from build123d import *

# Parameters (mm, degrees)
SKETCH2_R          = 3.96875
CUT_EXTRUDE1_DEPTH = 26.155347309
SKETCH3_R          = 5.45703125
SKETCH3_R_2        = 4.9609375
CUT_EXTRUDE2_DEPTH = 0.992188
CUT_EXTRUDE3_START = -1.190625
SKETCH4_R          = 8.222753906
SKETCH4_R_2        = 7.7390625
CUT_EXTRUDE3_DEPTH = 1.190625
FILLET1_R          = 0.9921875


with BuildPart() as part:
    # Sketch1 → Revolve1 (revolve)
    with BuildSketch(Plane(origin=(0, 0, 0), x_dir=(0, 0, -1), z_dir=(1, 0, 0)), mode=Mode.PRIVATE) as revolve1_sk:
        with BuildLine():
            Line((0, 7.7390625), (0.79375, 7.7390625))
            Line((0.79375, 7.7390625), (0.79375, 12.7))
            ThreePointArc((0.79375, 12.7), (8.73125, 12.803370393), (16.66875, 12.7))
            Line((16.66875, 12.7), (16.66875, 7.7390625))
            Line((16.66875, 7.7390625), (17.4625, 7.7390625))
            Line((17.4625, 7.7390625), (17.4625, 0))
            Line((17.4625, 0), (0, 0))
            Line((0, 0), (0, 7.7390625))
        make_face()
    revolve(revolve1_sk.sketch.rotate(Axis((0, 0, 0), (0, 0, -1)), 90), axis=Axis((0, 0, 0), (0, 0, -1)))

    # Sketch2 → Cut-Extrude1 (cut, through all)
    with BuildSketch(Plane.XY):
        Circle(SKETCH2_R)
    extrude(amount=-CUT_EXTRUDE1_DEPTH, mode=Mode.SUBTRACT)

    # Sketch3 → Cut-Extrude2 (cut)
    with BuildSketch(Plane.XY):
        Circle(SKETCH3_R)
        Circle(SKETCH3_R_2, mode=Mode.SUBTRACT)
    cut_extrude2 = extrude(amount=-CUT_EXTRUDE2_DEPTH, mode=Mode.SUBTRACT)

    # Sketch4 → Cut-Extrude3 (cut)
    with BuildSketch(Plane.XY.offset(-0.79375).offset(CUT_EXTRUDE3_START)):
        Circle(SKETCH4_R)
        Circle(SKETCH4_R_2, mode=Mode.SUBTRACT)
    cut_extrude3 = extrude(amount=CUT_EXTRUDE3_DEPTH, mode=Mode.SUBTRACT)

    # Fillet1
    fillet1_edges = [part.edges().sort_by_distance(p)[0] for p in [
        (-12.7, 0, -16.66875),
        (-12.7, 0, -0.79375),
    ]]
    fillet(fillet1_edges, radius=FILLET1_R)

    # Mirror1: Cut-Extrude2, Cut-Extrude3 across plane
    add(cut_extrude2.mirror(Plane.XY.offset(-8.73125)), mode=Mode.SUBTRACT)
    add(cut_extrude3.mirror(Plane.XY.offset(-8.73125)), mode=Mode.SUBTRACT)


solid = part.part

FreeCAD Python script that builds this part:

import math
import FreeCAD as App
import Part
import Sketcher
Q = App.Units.Quantity


def edges_at(feature, points):
    """Names of the edges that pass closest to the given points."""
    edges = feature.Shape.Edges
    near = lambda p: min(range(len(edges)), key=lambda i: edges[i].distToShape(Part.Vertex(*p))[0])
    return sorted({f"Edge{near(p) + 1}" for p in points})

doc = App.newDocument("Part")
params = doc.addObject("Spreadsheet::Sheet", "Params")
for row, (alias, value) in enumerate([
    ("sketch1_radius", "12 in"),
    ("sketch1_height", "0.03125 in"),
    ("sketch1_height2", "0.6875 in"),
    ("revolution_angle", "360 deg"),
    ("sketch2_diameter", "0.3125 in"),
    ("sketch3_diameter", "0.390625 in"),
    ("pocket2_length", "0.992188 mm"),
    ("sketch4_diameter", "0.609375 in"),
    ("pocket3_length", "0.046875 in"),
    ("fillet_radius", "0.992188 mm"),
], start=1):
    params.set(f"A{row}", alias)
    params.set(f"B{row}", "=" + value)
    params.setAlias(f"B{row}", alias)

body = doc.addObject("PartDesign::Body", "Body")

sketch1 = body.newObject("Sketcher::SketchObject", "Sketch")
sketch1.AttachmentSupport = (doc.getObject("YZ_Plane"), [""])
sketch1.MapMode = "FlatFace"
sketch1.addGeometry([
    Part.LineSegment(App.Vector(7.7, -0.8, 0), App.Vector(7.7, 0, 0)),
    Part.LineSegment(App.Vector(7.7, 0, 0), App.Vector(0, 0, 0)),
    Part.LineSegment(App.Vector(0, 0, 0), App.Vector(0, -17.5, 0)),
    Part.LineSegment(App.Vector(0, -17.5, 0), App.Vector(7.7, -17.5, 0)),
    Part.LineSegment(App.Vector(7.7, -17.5, 0), App.Vector(7.7, -16.7, 0)),
    Part.LineSegment(App.Vector(7.7, -16.7, 0), App.Vector(12.7, -16.7, 0)),
    Part.ArcOfCircle(Part.Circle(App.Vector(-292, -8.7, 0), App.Vector(0, 0, 1), 304.8), math.radians(-1.49), math.radians(1.49)),
    Part.LineSegment(App.Vector(12.7, -0.8, 0), App.Vector(7.7, -0.8, 0)),
], False)
sketch1.addConstraint([
    Sketcher.Constraint("Coincident", 0, 2, 1, 1),
    Sketcher.Constraint("Coincident", 1, 2, 2, 1),
    Sketcher.Constraint("Coincident", 2, 2, 3, 1),
    Sketcher.Constraint("Coincident", 3, 2, 4, 1),
    Sketcher.Constraint("Coincident", 4, 2, 5, 1),
    Sketcher.Constraint("Coincident", 5, 2, 6, 1),
    Sketcher.Constraint("Coincident", 6, 2, 7, 1),
    Sketcher.Constraint("Coincident", 7, 2, 0, 1),
    Sketcher.Constraint("Vertical", 0),
    Sketcher.Constraint("Horizontal", 1),
    Sketcher.Constraint("Vertical", 2),
    Sketcher.Constraint("Horizontal", 3),
    Sketcher.Constraint("Vertical", 4),
    Sketcher.Constraint("Horizontal", 5),
    Sketcher.Constraint("Horizontal", 7),
    Sketcher.Constraint("Coincident", 1, 2, -1, 1),
    Sketcher.Constraint("Vertical", 0, 2, 3, 2),
    Sketcher.Constraint("Vertical", 5, 2, 6, 2),
    Sketcher.Constraint("Equal", 0, 4),
    Sketcher.Constraint("Radius", 6, Q("12 in")),
    Sketcher.Constraint("DistanceX", -1, 1, 5, 2, Q("0.5 in")),
    Sketcher.Constraint("DistanceY", 0, 1, 0, 2, Q("0.03125 in")),
    Sketcher.Constraint("DistanceY", 2, 2, 2, 1, Q("0.6875 in")),
    Sketcher.Constraint("DistanceX", 1, 2, 1, 1, 7.739063),
])
sketch1.setExpression("Constraints[19]", "Params.sketch1_radius")
sketch1.setExpression("Constraints[21]", "Params.sketch1_height")
sketch1.setExpression("Constraints[22]", "Params.sketch1_height2")
revolution = body.newObject("PartDesign::Revolution", "Revolution")
revolution.Profile = sketch1
revolution.ReferenceAxis = (sketch1, ["V_Axis"])
revolution.setExpression("Angle", "Params.revolution_angle")

sketch2 = body.newObject("Sketcher::SketchObject", "Sketch001")
sketch2.AttachmentSupport = (doc.getObject("XY_Plane"), [""])
sketch2.MapMode = "FlatFace"
sketch2.addGeometry(Part.Circle(App.Vector(0, 0, 0), App.Vector(0, 0, 1), 4), False)
sketch2.addConstraint([
    Sketcher.Constraint("Coincident", 0, 3, -1, 1),
    Sketcher.Constraint("Diameter", 0, Q("0.3125 in")),
])
sketch2.setExpression("Constraints[1]", "Params.sketch2_diameter")
pocket1 = body.newObject("PartDesign::Pocket", "Pocket")
pocket1.Profile = sketch2
pocket1.Type = "ThroughAll"

sketch3 = body.newObject("Sketcher::SketchObject", "Sketch002")
sketch3.AttachmentSupport = (doc.getObject("XY_Plane"), [""])
sketch3.MapMode = "FlatFace"
sketch3.addGeometry([
    Part.Circle(App.Vector(0, 0, 0), App.Vector(0, 0, 1), 5.5),
    Part.Circle(App.Vector(0, 0, 0), App.Vector(0, 0, 1), 5),
], False)
sketch3.addConstraint([
    Sketcher.Constraint("Coincident", 0, 3, -1, 1),
    Sketcher.Constraint("Coincident", 1, 3, -1, 1),
    Sketcher.Constraint("Diameter", 1, Q("0.390625 in")),
    Sketcher.Constraint("Diameter", 0, 10.914062),
])
sketch3.setExpression("Constraints[2]", "Params.sketch3_diameter")
pocket2 = body.newObject("PartDesign::Pocket", "Pocket001")
pocket2.Profile = sketch3
pocket2.setExpression("Length", "Params.pocket2_length")

sketch4 = body.newObject("Sketcher::SketchObject", "Sketch003")
sketch4.AttachmentSupport = (doc.getObject("XY_Plane"), [""])
sketch4.MapMode = "FlatFace"
sketch4.AttachmentOffset = App.Placement(App.Vector(0, 0, -0.078125 * 25.4), App.Rotation())
sketch4.addGeometry([
    Part.Circle(App.Vector(0, 0, 0), App.Vector(0, 0, 1), 8),
    Part.Circle(App.Vector(0, 0, 0), App.Vector(0, 0, 1), 8),
], False)
sketch4.addConstraint([
    Sketcher.Constraint("Coincident", 0, 3, -1, 1),
    Sketcher.Constraint("Coincident", 1, 3, -1, 1),
    Sketcher.Constraint("Diameter", 1, Q("0.609375 in")),
    Sketcher.Constraint("Diameter", 0, 16.445508),
])
sketch4.setExpression("Constraints[2]", "Params.sketch4_diameter")
pocket3 = body.newObject("PartDesign::Pocket", "Pocket002")
pocket3.Profile = sketch4
pocket3.setExpression("Length", "Params.pocket3_length")
pocket3.Reversed = True
doc.recompute()

fillet = body.newObject("PartDesign::Fillet", "Fillet")
fillet.Base = (pocket3, edges_at(pocket3, [(-12.7, 0, -16.669), (-12.7, 0, -0.794)]))
fillet.setExpression("Radius", "Params.fillet_radius")
doc.recompute()

datumplane = body.newObject("PartDesign::Plane", "DatumPlane")
datumplane.AttachmentSupport = (doc.getObject("XY_Plane"), [""])
datumplane.MapMode = "FlatFace"
datumplane.AttachmentOffset = App.Placement(App.Vector(0, 0, -0.34375 * 25.4), App.Rotation())
mirrored = body.newObject("PartDesign::Mirrored", "Mirrored")
mirrored.Originals = [pocket2, pocket3]
mirrored.MirrorPlane = (datumplane, [""])
body.Tip = mirrored

doc.recompute()
